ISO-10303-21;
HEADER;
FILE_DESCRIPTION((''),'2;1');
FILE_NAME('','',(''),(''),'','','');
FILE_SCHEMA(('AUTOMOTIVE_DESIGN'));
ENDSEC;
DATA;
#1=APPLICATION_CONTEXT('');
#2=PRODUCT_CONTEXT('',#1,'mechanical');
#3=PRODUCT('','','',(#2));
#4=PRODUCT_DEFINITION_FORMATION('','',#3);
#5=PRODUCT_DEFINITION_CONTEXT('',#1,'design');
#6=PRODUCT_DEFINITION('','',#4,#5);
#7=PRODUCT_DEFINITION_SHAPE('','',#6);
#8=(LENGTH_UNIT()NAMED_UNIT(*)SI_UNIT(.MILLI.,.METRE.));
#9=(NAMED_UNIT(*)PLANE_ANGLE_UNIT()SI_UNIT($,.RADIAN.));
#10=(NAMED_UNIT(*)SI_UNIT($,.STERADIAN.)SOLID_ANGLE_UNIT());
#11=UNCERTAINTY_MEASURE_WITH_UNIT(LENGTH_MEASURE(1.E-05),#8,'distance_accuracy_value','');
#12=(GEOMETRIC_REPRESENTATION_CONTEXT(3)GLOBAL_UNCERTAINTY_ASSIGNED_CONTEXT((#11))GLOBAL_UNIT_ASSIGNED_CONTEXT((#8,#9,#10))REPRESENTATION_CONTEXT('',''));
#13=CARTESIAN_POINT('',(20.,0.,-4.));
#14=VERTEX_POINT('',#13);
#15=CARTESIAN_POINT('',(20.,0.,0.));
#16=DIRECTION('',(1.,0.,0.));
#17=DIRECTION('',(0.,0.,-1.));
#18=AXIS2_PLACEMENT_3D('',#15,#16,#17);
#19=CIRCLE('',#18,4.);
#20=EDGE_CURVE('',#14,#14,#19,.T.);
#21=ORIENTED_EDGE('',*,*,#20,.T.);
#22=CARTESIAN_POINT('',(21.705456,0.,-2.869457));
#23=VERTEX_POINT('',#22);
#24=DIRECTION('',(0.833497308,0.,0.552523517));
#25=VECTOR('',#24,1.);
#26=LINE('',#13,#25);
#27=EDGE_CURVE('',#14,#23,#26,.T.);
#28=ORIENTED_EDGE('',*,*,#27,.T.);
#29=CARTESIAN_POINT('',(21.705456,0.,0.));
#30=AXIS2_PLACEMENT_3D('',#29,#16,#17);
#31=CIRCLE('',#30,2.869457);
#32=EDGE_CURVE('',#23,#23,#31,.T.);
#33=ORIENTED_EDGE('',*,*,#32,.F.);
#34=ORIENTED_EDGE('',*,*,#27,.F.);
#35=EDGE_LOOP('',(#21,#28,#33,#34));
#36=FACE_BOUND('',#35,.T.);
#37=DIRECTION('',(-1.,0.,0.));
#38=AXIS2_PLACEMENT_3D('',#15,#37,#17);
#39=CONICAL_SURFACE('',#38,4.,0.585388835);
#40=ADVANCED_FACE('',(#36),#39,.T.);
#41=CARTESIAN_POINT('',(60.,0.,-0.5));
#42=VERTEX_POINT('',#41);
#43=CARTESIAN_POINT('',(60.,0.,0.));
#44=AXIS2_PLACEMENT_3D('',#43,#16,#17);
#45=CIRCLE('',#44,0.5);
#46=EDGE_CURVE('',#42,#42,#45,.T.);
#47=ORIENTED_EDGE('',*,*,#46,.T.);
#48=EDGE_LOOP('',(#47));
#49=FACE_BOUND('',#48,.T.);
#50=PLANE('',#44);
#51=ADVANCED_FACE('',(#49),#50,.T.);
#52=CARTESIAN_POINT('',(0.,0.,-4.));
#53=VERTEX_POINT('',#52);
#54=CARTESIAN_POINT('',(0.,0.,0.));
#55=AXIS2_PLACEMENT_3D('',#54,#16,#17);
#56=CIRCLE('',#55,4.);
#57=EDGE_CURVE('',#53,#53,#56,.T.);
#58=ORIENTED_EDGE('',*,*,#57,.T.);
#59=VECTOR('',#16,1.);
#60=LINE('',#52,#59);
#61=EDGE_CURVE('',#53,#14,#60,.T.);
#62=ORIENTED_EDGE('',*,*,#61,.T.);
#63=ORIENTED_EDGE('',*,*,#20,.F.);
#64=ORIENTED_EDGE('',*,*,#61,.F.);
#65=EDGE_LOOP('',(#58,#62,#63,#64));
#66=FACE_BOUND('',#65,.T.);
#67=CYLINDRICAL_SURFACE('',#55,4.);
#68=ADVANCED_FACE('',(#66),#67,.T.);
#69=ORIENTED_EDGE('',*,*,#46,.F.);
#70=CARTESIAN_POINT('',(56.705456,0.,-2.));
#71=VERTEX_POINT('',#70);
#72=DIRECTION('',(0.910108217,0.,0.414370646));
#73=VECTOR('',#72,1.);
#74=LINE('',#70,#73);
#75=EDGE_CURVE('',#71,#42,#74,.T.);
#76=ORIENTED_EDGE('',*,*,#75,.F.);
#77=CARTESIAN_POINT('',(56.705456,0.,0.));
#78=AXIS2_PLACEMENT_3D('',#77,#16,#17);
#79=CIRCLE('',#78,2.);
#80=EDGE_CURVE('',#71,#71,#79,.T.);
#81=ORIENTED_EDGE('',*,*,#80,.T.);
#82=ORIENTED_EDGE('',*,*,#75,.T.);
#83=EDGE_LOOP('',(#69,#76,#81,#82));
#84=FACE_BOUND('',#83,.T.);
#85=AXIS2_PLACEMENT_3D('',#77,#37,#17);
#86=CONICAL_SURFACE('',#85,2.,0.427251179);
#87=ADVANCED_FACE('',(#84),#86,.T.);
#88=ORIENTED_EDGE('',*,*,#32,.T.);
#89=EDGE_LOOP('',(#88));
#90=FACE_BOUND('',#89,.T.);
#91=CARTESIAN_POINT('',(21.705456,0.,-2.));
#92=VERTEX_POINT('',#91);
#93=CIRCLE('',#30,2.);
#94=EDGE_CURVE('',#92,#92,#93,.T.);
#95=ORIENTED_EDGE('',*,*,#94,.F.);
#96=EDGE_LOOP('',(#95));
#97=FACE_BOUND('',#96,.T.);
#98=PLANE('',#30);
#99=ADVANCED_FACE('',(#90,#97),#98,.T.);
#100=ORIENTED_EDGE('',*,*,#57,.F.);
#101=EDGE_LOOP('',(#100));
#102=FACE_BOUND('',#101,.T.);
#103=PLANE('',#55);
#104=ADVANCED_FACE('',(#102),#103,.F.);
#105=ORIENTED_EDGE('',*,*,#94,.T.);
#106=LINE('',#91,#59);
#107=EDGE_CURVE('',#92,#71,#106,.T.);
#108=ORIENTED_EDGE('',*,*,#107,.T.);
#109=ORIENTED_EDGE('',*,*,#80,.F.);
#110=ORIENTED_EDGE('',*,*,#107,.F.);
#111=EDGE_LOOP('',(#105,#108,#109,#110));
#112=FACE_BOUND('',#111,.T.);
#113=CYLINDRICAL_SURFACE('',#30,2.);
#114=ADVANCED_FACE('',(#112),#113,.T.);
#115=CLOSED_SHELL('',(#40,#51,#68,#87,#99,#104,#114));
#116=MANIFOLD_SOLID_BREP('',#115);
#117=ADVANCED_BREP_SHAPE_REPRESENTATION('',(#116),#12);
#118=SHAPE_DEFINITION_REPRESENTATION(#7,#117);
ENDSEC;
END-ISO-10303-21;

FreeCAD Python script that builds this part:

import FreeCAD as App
import Part
import Sketcher
Q = App.Units.Quantity

doc = App.newDocument("Part")
body = doc.addObject("PartDesign::Body", "Body")

# Sketch on XZ plane
sketch1 = body.newObject("Sketcher::SketchObject", "Sketch")
sketch1.AttachmentSupport = (doc.getObject("XZ_Plane"), [""])
sketch1.MapMode = "FlatFace"
sketch1.addGeometry([
    Part.LineSegment(App.Vector(0, -4, 0), App.Vector(20, -4, 0)),  # 0
    Part.LineSegment(App.Vector(20, -4, 0), App.Vector(21.7, -2.9, 0)),  # 1
    Part.LineSegment(App.Vector(21.7, -2.9, 0), App.Vector(21.7, -2, 0)),  # 2
    Part.LineSegment(App.Vector(21.7, -2, 0), App.Vector(56.7, -2, 0)),  # 3
    Part.LineSegment(App.Vector(56.7, -2, 0), App.Vector(60, -0.5, 0)),  # 4
    Part.LineSegment(App.Vector(60, -0.5, 0), App.Vector(60, 0, 0)),  # 5
    Part.LineSegment(App.Vector(60, 0, 0), App.Vector(0, 0, 0)),  # 6
    Part.LineSegment(App.Vector(0, 0, 0), App.Vector(0, -4, 0)),  # 7
], False)
sketch1.addConstraint([
    Sketcher.Constraint("Coincident", 0, 2, 1, 1),
    Sketcher.Constraint("Coincident", 1, 2, 2, 1),
    Sketcher.Constraint("Coincident", 2, 2, 3, 1),
    Sketcher.Constraint("Coincident", 3, 2, 4, 1),
    Sketcher.Constraint("Coincident", 4, 2, 5, 1),
    Sketcher.Constraint("Coincident", 5, 2, 6, 1),
    Sketcher.Constraint("Coincident", 6, 2, 7, 1),
    Sketcher.Constraint("Coincident", 7, 2, 0, 1),
    Sketcher.Constraint("Horizontal", 0),
    Sketcher.Constraint("Vertical", 2),
    Sketcher.Constraint("Horizontal", 3),
    Sketcher.Constraint("Vertical", 5),
    Sketcher.Constraint("Horizontal", 6),
    Sketcher.Constraint("Vertical", 7),
    Sketcher.Constraint("Coincident", 6, 2, -1, 1),
    Sketcher.Constraint("DistanceX", 0, 1, 0, 2, Q("20 mm")),
    Sketcher.Constraint("DistanceX", 3, 1, 3, 2, Q("35 mm")),
    Sketcher.Constraint("DistanceX", 6, 2, 6, 1, Q("60 mm")),
    Sketcher.Constraint("DistanceY", 7, 2, 7, 1, Q("4 mm")),
    Sketcher.Constraint("DistanceY", 5, 1, 5, 2, Q("0.5 mm")),
    Sketcher.Constraint("DistanceY", 2, 2, -1, 1, Q("2 mm")),
    Sketcher.Constraint("DistanceY", 2, 1, 2, 2, Q("0.869457 mm")),
    Sketcher.Constraint("Distance", 1, Q("2.046145 mm")),
])
revolution = body.newObject("PartDesign::Revolution", "Revolution")
revolution.Profile = sketch1
revolution.ReferenceAxis = (sketch1, ["H_Axis"])
revolution.Angle = 360

doc.recompute()
